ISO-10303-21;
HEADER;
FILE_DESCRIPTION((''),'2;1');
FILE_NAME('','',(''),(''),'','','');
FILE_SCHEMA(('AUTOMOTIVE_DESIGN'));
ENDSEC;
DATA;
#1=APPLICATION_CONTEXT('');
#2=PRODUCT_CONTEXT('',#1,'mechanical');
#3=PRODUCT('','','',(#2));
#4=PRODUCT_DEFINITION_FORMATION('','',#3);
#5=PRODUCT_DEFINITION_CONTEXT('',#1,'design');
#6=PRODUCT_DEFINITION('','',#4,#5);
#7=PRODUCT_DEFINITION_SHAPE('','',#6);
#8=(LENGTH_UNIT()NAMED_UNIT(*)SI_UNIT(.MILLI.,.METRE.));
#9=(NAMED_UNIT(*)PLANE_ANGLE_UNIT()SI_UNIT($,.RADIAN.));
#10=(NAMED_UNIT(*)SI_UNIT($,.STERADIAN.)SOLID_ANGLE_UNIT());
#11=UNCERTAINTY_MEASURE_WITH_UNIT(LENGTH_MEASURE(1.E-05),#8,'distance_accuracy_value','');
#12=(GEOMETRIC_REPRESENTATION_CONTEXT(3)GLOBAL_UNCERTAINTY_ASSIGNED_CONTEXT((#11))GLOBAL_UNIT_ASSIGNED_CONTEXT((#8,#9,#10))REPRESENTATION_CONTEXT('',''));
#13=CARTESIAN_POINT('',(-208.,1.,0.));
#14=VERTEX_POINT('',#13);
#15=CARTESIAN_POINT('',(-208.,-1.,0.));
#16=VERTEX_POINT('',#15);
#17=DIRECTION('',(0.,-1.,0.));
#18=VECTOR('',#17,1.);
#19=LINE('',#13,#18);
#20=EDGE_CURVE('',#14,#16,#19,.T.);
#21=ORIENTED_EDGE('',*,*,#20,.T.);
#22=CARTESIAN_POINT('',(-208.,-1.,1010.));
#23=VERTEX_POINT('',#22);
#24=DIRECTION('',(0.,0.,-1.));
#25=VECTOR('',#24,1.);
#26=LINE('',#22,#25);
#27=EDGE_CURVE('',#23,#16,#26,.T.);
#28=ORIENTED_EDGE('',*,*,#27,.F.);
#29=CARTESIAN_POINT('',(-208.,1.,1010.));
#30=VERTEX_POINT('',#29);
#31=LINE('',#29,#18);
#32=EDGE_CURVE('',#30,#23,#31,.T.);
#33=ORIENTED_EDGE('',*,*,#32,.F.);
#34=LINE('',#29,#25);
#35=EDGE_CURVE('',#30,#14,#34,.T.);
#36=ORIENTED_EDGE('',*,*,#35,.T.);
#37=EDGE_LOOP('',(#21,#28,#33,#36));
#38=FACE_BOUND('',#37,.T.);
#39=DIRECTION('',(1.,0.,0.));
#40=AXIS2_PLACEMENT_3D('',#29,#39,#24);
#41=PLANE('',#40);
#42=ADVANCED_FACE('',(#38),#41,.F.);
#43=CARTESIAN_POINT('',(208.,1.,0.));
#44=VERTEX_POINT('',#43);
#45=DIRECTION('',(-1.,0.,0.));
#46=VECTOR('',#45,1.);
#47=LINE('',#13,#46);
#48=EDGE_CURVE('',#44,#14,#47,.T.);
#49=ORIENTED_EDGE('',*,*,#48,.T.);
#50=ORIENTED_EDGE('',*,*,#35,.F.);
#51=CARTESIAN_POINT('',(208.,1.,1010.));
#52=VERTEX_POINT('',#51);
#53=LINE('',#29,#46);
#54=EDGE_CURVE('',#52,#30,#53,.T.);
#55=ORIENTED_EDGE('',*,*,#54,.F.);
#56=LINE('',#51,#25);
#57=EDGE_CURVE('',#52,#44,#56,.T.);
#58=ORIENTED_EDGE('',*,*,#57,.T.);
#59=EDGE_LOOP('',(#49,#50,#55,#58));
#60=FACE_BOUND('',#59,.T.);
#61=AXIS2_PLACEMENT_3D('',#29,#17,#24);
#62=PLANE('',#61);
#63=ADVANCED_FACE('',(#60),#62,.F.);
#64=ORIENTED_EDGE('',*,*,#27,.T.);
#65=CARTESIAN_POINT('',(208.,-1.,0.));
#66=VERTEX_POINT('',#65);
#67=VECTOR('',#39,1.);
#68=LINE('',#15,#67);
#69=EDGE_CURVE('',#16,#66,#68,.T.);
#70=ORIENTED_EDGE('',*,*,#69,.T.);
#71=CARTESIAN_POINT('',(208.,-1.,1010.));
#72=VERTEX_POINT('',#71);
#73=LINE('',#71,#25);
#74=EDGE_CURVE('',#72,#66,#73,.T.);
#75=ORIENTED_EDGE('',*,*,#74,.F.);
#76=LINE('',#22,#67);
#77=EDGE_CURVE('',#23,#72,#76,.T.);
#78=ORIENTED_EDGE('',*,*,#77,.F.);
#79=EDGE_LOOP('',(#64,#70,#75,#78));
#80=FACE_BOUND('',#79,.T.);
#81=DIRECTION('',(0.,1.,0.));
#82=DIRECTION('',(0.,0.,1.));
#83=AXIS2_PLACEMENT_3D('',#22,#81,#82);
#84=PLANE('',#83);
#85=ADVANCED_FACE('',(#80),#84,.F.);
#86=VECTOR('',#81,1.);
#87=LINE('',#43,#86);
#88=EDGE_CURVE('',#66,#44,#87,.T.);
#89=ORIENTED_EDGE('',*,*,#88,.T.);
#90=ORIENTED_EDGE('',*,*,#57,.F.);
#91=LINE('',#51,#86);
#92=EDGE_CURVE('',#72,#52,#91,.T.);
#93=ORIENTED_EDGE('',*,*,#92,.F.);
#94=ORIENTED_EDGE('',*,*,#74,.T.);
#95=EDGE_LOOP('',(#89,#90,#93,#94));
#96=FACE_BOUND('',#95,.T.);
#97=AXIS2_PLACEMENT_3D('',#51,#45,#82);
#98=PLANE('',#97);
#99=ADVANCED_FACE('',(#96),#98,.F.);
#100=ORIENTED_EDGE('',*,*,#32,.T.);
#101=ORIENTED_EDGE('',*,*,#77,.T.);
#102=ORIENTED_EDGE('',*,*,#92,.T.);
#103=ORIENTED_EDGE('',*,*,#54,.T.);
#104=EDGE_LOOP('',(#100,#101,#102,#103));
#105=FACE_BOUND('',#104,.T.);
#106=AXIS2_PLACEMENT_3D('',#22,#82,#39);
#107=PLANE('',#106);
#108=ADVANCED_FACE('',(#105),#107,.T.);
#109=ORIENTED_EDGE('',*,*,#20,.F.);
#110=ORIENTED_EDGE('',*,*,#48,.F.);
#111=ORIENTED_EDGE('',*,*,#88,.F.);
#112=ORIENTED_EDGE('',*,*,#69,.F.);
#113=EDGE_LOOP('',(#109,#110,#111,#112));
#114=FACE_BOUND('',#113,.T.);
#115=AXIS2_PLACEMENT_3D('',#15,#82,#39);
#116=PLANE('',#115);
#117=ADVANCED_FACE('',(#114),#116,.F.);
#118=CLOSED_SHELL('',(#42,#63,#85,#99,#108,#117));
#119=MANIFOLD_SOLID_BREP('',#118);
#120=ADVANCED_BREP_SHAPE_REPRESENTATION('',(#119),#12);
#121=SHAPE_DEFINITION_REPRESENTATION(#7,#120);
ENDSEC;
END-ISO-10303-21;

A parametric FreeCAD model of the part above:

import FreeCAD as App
import Part
import Sketcher
from FreeCAD import Vector


def add_polygon(sketch, points):
    """Adds a closed chain of lines whose ends are joined by coincident constraints."""
    first, n = sketch.GeometryCount, len(points)
    for a, b in zip(points, points[1:] + points[:1]):
        sketch.addGeometry(Part.LineSegment(App.Vector(*a, 0), App.Vector(*b, 0)), False)
    for i in range(n):
        sketch.addConstraint(Sketcher.Constraint("Coincident", first + i, 2, first + (i + 1) % n, 1))

doc = App.newDocument("Part")
body = doc.addObject("PartDesign::Body", "Body")

# Sketch on XY plane
sketch1 = body.newObject("Sketcher::SketchObject", "Sketch")
sketch1.AttachmentSupport = (doc.getObject("XY_Plane"), [""])
sketch1.MapMode = "FlatFace"
add_polygon(sketch1, [(-208, 1), (-208, -1), (208, -1), (208, 1)])  # lines 0-3
sketch1.addConstraint([
    Sketcher.Constraint("Vertical", 0),
    Sketcher.Constraint("Horizontal", 1),
    Sketcher.Constraint("Vertical", 2),
    Sketcher.Constraint("Horizontal", 3),
    Sketcher.Constraint("Symmetric", 0, 2, 2, 2, -1, 1),
    Sketcher.Constraint("DistanceX", 1, 1, 1, 2, 416.0),
    Sketcher.Constraint("DistanceY", 0, 2, 0, 1, 2.0),
])
pad1 = body.newObject("PartDesign::Pad", "Pad")
pad1.Profile = sketch1
pad1.Length = 1010

doc.recompute()
